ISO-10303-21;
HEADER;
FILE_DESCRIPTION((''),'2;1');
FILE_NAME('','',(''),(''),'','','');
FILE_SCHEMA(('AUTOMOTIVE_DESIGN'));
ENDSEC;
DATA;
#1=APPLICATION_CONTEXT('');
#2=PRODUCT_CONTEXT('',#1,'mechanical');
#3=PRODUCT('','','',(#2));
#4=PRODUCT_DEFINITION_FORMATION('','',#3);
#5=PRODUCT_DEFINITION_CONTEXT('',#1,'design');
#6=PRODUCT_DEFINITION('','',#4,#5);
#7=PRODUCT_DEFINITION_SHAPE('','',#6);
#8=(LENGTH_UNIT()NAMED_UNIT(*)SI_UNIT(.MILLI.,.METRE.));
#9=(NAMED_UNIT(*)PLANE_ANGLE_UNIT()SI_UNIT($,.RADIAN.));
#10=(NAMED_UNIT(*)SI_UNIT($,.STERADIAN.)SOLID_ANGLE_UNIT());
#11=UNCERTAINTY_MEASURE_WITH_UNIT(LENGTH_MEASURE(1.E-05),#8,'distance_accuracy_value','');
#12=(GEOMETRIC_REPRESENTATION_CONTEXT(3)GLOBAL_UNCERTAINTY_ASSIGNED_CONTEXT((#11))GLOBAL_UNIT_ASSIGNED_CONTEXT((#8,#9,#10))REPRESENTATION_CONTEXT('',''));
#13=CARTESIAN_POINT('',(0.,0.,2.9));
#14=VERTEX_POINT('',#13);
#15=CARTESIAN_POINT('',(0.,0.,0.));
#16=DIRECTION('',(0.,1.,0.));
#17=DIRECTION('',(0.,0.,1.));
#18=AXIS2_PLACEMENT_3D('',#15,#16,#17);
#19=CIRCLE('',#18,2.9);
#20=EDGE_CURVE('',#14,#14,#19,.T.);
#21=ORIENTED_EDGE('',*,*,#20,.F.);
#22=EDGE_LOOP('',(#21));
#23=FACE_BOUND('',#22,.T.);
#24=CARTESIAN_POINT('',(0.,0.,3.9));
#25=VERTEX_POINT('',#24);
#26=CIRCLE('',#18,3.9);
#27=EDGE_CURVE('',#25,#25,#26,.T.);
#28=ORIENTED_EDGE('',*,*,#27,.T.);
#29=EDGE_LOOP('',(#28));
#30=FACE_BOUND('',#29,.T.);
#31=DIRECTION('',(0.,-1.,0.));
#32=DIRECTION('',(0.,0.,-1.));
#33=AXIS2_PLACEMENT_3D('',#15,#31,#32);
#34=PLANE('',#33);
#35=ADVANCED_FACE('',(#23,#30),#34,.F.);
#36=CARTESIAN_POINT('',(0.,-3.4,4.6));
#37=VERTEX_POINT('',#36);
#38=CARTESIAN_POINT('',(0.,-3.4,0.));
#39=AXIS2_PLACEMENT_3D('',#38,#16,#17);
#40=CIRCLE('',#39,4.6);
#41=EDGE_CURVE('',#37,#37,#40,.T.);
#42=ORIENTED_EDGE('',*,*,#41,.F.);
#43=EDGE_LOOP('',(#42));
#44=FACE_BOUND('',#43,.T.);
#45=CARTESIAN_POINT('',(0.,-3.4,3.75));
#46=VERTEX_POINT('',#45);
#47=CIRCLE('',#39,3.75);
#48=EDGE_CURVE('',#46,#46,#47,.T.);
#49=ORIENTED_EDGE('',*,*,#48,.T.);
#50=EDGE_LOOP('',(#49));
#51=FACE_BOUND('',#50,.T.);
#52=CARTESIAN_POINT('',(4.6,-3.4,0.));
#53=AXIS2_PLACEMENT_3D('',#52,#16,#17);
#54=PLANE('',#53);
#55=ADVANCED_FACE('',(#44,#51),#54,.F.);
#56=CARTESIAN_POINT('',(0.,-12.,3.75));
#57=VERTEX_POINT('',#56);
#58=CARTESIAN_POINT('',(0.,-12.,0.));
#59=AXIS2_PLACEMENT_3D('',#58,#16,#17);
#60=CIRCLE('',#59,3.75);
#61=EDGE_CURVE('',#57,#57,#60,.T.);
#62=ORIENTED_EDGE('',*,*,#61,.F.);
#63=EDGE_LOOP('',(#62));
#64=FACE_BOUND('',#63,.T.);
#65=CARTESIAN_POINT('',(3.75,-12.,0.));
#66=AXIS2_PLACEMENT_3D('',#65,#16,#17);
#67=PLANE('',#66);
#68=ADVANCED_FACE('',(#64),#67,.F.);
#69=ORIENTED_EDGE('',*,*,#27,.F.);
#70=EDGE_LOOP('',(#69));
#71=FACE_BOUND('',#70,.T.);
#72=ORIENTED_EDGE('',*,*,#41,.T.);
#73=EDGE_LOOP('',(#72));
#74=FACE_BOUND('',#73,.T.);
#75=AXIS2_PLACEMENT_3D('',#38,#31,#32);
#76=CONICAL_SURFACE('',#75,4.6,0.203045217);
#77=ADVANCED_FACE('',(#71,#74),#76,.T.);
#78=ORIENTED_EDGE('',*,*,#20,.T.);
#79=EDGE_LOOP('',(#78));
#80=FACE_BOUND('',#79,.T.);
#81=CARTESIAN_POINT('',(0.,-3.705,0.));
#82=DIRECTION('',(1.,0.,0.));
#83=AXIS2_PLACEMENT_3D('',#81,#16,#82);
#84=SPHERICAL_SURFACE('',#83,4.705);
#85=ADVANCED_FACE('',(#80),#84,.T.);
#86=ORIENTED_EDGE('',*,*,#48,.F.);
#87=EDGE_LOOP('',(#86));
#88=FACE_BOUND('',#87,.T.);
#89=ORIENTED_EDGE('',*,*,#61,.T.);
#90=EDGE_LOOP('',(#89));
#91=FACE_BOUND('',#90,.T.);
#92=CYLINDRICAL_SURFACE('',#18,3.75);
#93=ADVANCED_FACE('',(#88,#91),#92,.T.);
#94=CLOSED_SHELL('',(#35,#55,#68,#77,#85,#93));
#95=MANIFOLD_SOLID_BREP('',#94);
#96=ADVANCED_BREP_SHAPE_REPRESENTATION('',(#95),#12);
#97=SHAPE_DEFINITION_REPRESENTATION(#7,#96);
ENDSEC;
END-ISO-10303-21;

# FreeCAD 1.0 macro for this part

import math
import FreeCAD as App
import Part
import Sketcher


def add_polygon(sketch, points):
    """Adds a closed chain of lines whose ends are joined by coincident constraints."""
    first, n = sketch.GeometryCount, len(points)
    for a, b in zip(points, points[1:] + points[:1]):
        sketch.addGeometry(Part.LineSegment(App.Vector(*a, 0), App.Vector(*b, 0)), False)
    for i in range(n):
        sketch.addConstraint(Sketcher.Constraint("Coincident", first + i, 2, first + (i + 1) % n, 1))

doc = App.newDocument("Part")
params = doc.addObject("Spreadsheet::Sheet", "Params")
for row, (alias, value) in enumerate([
    ("sketch1_height", "12 mm"),
    ("sketch1_width", "3.9 mm"),
    ("sketch1_height2", "8.6 mm"),
    ("sketch1_width2", "3.75 mm"),
    ("sketch1_width3", "0.85 mm"),
    ("revolution_angle", "360 deg"),
    ("sketch2_height", "1 mm"),
    ("sketch2_width", "2.9 mm"),
    ("revolution2_angle", "360 deg"),
], start=1):
    params.set(f"A{row}", alias)
    params.set(f"B{row}", "=" + value)
    params.setAlias(f"B{row}", alias)

body = doc.addObject("PartDesign::Body", "Body")

sketch1 = doc.addObject("Sketcher::SketchObject", "Sketch")
body.addObject(sketch1)
sketch1.AttachmentSupport = (doc.XY_Plane, [""])
sketch1.MapMode = "FlatFace"
add_polygon(sketch1, [(3.9, 0), (0, 0), (0, -12), (3.8, -12), (3.8, -3.4), (4.6, -3.4)])
sketch1.addConstraint([
    Sketcher.Constraint("Horizontal", 0),
    Sketcher.Constraint("Vertical", 1),
    Sketcher.Constraint("Horizontal", 2),
    Sketcher.Constraint("Vertical", 3),
    Sketcher.Constraint("Horizontal", 4),
    Sketcher.Constraint("Coincident", 0, 2, -1, 1),
    Sketcher.Constraint("DistanceY", 1, 2, 1, 1, 12.0),
    Sketcher.Constraint("DistanceX", 0, 2, 0, 1, 3.9),
    Sketcher.Constraint("DistanceY", 3, 1, 3, 2, 8.6),
    Sketcher.Constraint("DistanceX", 2, 1, 2, 2, 3.75),
    Sketcher.Constraint("DistanceX", 4, 1, 4, 2, 0.85),
])
sketch1.setExpression("Constraints[12]", "Params.sketch1_height")
sketch1.setExpression("Constraints[13]", "Params.sketch1_width")
sketch1.setExpression("Constraints[14]", "Params.sketch1_height2")
sketch1.setExpression("Constraints[15]", "Params.sketch1_width2")
sketch1.setExpression("Constraints[16]", "Params.sketch1_width3")
revolution = doc.addObject("PartDesign::Revolution", "Revolution")
body.addObject(revolution)
revolution.Profile = sketch1
revolution.ReferenceAxis = (sketch1, ["V_Axis"])
revolution.setExpression("Angle", "Params.revolution_angle")

sketch2 = doc.addObject("Sketcher::SketchObject", "Sketch001")
body.addObject(sketch2)
sketch2.AttachmentSupport = (doc.XY_Plane, [""])
sketch2.MapMode = "FlatFace"
sketch2.addGeometry([
    Part.LineSegment(App.Vector(0, 0, 0), App.Vector(0, 1, 0)),
    Part.ArcOfCircle(Part.Circle(App.Vector(0, -3.7, 0), App.Vector(0, 0, 1), 4.7), math.radians(90), math.radians(128)),
    Part.LineSegment(App.Vector(-2.9, 0, 0), App.Vector(0, 0, 0)),
], False)
sketch2.addConstraint([
    Sketcher.Constraint("Coincident", 0, 2, 1, 1),
    Sketcher.Constraint("Coincident", 1, 2, 2, 1),
    Sketcher.Constraint("Coincident", 2, 2, 0, 1),
    Sketcher.Constraint("Vertical", 0),
    Sketcher.Constraint("Horizontal", 2),
    Sketcher.Constraint("Coincident", 2, 2, -1, 1),
    Sketcher.Constraint("PointOnObject", 1, 3, -2),
    Sketcher.Constraint("DistanceY", 0, 1, 0, 2, 1.0),
    Sketcher.Constraint("DistanceX", 2, 1, 2, 2, 2.9),
])
sketch2.setExpression("Constraints[7]", "Params.sketch2_height")
sketch2.setExpression("Constraints[8]", "Params.sketch2_width")
revolution2 = doc.addObject("PartDesign::Revolution", "Revolution001")
body.addObject(revolution2)
revolution2.Profile = sketch2
revolution2.ReferenceAxis = (sketch2, ["V_Axis"])
revolution2.setExpression("Angle", "Params.revolution2_angle")

doc.recompute()
